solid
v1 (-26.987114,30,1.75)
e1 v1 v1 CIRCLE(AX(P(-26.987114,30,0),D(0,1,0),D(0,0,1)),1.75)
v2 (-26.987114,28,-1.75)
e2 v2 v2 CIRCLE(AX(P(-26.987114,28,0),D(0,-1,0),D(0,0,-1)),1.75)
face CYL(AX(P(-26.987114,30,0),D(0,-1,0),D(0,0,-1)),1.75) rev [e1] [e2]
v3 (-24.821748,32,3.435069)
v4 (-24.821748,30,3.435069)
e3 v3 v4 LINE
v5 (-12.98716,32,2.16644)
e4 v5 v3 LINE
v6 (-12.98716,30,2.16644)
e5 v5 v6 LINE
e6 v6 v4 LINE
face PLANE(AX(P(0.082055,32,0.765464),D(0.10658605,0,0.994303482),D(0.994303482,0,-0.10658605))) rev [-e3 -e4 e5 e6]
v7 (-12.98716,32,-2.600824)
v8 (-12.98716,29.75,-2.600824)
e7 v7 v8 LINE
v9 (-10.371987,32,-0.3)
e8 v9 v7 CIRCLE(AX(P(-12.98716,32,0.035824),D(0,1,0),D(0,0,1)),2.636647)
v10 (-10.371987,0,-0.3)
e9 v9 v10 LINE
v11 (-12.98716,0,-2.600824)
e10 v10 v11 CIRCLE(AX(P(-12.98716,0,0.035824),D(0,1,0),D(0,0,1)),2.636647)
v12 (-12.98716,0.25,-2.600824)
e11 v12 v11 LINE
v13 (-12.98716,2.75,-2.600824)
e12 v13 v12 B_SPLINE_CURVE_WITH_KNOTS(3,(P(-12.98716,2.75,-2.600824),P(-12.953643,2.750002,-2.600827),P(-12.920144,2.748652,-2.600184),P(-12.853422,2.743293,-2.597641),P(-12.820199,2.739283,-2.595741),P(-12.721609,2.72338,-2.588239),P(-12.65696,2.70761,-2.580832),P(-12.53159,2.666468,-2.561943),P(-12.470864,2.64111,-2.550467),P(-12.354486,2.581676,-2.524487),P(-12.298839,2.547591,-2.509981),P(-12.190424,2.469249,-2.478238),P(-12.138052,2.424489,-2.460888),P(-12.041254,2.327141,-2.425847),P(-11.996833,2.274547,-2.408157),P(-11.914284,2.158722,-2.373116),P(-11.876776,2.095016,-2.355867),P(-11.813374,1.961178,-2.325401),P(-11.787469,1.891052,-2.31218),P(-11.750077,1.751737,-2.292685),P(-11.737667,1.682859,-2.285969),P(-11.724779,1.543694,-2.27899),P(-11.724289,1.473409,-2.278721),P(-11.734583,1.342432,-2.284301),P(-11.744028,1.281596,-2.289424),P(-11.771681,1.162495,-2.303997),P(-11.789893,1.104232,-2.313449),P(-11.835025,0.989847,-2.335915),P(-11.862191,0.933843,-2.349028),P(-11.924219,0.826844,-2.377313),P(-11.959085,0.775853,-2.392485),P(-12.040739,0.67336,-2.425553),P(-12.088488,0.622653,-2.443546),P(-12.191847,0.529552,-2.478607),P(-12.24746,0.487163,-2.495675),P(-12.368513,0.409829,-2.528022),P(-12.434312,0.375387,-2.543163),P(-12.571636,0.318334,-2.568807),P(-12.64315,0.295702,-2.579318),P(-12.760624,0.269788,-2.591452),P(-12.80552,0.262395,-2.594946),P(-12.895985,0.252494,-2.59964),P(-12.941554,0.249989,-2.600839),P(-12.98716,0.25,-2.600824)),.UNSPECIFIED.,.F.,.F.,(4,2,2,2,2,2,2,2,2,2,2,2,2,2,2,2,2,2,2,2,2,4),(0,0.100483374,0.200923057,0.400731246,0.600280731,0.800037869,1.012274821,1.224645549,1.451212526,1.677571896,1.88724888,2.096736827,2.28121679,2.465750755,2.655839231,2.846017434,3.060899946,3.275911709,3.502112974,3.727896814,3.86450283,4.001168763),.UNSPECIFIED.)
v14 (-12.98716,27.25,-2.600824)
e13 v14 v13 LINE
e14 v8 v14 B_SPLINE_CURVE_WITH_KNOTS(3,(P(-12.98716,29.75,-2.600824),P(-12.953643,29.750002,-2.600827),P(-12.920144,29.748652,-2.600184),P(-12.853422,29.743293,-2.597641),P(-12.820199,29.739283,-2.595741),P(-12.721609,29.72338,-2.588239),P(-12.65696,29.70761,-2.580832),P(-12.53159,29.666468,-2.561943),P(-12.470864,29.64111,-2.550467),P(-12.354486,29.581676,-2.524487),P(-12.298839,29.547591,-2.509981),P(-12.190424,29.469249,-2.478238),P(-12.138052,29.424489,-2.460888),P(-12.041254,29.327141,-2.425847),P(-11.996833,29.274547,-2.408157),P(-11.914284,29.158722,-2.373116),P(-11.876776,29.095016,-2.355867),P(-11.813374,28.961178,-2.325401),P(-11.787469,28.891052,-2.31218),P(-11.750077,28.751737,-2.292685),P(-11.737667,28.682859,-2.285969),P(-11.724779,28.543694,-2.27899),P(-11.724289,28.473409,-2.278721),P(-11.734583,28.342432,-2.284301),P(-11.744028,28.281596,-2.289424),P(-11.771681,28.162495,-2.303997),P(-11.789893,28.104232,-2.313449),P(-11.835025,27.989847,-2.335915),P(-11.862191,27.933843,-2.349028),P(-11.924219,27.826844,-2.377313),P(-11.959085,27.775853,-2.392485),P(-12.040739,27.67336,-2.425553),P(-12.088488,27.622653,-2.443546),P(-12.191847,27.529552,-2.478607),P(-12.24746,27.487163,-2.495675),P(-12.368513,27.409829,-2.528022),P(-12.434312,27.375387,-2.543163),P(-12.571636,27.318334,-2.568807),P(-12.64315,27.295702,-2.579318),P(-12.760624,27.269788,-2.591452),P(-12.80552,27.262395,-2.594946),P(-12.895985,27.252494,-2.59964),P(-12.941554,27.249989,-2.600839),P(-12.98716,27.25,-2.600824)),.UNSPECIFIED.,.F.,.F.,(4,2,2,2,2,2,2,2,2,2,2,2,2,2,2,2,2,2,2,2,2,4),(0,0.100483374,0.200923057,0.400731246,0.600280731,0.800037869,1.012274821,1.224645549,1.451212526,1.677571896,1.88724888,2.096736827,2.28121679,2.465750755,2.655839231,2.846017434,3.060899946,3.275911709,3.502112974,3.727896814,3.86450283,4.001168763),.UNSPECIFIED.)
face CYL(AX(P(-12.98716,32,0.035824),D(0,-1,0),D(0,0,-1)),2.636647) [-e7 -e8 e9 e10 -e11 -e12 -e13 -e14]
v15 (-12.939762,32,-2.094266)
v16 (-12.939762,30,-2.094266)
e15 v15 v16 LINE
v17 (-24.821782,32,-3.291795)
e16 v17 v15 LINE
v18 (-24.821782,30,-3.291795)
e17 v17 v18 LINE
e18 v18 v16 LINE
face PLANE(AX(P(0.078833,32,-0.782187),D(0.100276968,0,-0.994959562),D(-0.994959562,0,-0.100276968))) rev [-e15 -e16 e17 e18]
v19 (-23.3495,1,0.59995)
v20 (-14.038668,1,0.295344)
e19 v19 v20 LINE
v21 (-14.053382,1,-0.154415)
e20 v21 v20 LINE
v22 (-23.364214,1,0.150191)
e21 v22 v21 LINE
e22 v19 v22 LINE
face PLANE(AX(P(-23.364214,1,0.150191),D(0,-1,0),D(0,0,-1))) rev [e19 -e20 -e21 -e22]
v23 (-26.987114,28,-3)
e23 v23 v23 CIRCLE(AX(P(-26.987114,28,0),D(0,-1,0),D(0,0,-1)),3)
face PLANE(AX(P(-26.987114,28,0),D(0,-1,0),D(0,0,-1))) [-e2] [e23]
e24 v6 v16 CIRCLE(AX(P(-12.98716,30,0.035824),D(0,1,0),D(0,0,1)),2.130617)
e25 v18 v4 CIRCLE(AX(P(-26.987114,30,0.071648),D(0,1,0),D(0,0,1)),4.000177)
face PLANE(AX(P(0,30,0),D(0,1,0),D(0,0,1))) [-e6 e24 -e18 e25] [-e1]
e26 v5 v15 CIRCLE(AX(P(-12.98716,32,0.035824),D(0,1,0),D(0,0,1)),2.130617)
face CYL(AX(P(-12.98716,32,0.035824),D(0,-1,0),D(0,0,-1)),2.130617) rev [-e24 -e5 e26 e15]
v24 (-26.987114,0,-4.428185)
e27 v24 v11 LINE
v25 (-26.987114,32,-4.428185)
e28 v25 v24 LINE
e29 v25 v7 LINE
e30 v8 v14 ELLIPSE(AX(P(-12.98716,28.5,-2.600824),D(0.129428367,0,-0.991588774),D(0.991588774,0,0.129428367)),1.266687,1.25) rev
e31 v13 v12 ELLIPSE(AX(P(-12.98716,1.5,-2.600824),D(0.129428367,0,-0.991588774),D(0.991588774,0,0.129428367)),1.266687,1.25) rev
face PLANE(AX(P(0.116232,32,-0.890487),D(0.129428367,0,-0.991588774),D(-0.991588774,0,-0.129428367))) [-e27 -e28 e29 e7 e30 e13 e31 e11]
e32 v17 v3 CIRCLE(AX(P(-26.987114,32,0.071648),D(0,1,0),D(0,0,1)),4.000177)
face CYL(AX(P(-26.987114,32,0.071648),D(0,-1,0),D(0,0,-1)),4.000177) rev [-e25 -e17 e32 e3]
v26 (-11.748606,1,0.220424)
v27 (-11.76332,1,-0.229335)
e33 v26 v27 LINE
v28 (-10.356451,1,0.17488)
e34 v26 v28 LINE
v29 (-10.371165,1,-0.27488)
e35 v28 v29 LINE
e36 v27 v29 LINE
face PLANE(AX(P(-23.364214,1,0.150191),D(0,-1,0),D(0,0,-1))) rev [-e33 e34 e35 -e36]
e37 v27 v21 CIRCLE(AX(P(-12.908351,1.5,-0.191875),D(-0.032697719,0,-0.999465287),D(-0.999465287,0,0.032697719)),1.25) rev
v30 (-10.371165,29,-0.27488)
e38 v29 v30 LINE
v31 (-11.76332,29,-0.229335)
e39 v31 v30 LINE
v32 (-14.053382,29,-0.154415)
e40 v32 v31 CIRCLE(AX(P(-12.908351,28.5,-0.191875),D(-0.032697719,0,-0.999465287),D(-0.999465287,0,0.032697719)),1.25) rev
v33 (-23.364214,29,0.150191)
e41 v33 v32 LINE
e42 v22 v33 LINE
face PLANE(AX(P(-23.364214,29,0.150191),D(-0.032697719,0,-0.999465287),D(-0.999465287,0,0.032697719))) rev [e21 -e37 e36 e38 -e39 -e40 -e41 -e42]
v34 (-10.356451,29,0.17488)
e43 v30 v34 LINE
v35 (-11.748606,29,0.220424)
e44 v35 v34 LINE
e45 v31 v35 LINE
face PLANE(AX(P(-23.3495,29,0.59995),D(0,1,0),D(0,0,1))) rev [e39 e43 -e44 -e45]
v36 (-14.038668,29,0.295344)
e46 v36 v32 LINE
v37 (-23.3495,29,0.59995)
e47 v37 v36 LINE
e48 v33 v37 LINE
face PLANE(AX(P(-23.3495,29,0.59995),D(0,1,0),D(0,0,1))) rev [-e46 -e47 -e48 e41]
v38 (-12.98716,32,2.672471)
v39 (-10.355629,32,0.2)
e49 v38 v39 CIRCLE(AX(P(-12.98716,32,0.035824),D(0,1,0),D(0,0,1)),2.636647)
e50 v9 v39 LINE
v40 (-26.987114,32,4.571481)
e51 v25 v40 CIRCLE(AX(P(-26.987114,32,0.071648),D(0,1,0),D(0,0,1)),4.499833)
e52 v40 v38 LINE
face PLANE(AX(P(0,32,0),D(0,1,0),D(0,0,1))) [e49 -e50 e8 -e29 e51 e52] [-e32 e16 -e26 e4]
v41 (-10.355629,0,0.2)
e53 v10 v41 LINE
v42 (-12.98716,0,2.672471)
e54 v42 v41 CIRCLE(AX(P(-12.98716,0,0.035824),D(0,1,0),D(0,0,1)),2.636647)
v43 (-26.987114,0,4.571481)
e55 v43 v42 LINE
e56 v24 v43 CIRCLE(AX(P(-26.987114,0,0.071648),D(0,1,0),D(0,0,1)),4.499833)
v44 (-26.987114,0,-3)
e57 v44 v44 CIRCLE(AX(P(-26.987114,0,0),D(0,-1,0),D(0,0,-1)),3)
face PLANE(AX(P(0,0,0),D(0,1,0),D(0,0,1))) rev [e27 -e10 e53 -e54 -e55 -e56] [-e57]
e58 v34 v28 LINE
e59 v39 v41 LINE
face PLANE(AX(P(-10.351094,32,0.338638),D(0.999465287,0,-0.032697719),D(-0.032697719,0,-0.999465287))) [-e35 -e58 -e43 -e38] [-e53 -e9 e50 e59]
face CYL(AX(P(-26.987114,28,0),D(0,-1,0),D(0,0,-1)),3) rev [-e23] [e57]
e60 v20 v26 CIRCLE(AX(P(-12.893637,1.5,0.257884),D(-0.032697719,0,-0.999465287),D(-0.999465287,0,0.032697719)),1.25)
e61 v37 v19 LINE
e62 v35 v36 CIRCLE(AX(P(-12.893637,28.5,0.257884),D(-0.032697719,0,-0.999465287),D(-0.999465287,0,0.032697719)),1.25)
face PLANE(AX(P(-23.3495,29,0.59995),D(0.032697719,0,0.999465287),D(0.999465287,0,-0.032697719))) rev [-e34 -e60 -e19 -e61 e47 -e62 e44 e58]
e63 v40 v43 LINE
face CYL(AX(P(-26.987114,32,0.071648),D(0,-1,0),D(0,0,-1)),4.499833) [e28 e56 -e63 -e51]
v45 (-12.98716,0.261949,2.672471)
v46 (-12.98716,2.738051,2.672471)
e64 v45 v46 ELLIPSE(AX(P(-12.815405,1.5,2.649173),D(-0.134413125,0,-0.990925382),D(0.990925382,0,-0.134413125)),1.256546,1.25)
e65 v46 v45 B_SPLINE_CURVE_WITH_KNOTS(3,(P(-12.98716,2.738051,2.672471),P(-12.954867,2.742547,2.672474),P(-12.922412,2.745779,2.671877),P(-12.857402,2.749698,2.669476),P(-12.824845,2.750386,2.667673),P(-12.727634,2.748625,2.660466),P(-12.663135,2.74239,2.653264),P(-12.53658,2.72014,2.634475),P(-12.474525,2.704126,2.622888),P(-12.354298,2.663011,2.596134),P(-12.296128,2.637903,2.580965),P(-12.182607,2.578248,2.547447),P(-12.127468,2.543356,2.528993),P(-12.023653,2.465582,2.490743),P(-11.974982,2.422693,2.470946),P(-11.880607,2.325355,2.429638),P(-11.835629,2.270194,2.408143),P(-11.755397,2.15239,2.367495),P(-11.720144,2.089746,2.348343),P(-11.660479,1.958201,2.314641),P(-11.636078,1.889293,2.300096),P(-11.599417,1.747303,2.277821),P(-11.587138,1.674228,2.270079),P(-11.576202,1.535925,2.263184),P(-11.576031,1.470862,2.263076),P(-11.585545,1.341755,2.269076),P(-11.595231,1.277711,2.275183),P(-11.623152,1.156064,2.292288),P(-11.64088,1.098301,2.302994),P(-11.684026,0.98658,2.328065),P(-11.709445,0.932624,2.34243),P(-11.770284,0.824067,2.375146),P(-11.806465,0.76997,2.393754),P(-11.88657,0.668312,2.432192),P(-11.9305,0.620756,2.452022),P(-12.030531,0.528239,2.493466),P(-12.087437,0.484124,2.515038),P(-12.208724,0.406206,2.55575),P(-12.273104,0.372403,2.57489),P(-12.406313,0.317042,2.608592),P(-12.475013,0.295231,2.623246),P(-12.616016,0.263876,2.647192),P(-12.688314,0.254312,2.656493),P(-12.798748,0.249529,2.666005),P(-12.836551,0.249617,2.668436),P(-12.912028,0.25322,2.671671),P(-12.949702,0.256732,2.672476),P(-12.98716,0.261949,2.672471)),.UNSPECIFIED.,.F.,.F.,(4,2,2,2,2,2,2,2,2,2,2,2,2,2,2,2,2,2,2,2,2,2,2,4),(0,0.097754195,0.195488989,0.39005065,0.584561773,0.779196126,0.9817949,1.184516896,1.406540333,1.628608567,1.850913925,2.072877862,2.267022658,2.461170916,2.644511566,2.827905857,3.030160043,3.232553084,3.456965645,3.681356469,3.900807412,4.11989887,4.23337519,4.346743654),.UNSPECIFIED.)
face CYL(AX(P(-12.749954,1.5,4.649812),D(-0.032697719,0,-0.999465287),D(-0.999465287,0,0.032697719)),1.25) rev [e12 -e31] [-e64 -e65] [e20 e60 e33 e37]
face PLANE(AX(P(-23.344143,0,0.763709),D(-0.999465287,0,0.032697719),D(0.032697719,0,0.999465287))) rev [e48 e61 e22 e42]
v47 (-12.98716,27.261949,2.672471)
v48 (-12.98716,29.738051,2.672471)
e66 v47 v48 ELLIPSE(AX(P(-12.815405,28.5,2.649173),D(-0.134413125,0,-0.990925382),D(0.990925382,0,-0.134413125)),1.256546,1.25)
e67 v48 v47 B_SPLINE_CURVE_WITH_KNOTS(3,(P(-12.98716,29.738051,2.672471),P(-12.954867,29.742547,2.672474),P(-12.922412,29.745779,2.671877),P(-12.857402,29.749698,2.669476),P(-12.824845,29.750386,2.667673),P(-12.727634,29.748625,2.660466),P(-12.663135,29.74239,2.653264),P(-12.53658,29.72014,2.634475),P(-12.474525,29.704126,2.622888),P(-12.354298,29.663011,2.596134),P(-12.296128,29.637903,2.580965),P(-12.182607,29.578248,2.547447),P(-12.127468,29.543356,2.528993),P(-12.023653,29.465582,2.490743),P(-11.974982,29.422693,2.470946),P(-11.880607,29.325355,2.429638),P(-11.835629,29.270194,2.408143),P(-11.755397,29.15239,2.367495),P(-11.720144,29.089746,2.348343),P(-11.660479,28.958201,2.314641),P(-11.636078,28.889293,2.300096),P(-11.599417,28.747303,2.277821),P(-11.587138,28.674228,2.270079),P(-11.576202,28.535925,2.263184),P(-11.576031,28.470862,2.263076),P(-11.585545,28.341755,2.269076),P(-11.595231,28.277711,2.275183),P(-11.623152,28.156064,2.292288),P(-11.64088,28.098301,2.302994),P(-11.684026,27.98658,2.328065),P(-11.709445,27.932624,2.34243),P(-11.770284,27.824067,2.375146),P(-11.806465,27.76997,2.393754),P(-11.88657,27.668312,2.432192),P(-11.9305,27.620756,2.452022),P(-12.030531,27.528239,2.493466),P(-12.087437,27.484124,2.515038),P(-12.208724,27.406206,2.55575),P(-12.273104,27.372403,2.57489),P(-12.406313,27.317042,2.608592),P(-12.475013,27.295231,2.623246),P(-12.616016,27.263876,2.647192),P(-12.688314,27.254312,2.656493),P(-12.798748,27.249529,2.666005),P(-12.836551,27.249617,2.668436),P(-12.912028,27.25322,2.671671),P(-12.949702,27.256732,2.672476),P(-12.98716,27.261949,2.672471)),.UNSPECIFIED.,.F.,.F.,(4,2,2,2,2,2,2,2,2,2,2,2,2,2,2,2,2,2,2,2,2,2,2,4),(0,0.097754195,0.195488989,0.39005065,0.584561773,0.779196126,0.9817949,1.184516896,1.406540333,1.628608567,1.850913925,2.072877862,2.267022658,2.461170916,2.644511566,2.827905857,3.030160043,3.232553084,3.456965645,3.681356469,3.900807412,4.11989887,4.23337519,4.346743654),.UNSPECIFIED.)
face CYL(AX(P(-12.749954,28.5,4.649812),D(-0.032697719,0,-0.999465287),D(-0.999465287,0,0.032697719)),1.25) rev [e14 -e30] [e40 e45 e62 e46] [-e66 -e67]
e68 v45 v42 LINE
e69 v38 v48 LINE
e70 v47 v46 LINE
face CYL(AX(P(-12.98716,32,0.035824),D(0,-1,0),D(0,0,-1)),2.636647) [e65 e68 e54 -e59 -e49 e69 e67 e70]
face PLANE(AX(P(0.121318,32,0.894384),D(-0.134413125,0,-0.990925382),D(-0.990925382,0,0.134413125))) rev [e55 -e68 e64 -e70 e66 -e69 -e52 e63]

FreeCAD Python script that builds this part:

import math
import FreeCAD as App
import Part
import Sketcher

V = App.Vector


def add_polygon(sketch, points):
    """Adds a closed chain of lines whose ends are joined by coincident constraints."""
    first, n = sketch.GeometryCount, len(points)
    for a, b in zip(points, points[1:] + points[:1]):
        sketch.addGeometry(Part.LineSegment(App.Vector(*a, 0), App.Vector(*b, 0)), False)
    for i in range(n):
        sketch.addConstraint(Sketcher.Constraint("Coincident", first + i, 2, first + (i + 1) % n, 1))

doc = App.newDocument("Part")
body = doc.addObject("PartDesign::Body", "Body")

# Sketch on XZ plane
sketch1 = body.newObject("Sketcher::SketchObject", "Sketch")
sketch1.AttachmentSupport = (doc.getObject("XZ_Plane"), [""])
sketch1.MapMode = "FlatFace"
sketch1.addGeometry(Part.LineSegment(V(-24.8, 3.4, 0), V(-13, 2.2, 0)), False)
sketch1.addGeometry(Part.ArcOfCircle(Part.Circle(V(-13, 0, 0), V(0, 0, 1), 2.1), math.radians(-89), math.radians(90)), False)
sketch1.addGeometry(Part.LineSegment(V(-12.9, -2.1, 0), V(-24.8, -3.3, 0)), False)
sketch1.addGeometry(Part.ArcOfCircle(Part.Circle(V(-27, 0.1, 0), V(0, 0, 1), 4), math.radians(57), math.radians(303)), False)
sketch1.addGeometry(Part.Circle(V(-27, 0, 0), V(0, 0, 1), 1.8), False)
sketch1.addConstraint(Sketcher.Constraint("Coincident", 0, 2, 1, 2))
sketch1.addConstraint(Sketcher.Constraint("Coincident", 1, 1, 2, 1))
sketch1.addConstraint(Sketcher.Constraint("Coincident", 2, 2, 3, 2))
sketch1.addConstraint(Sketcher.Constraint("Coincident", 3, 1, 0, 1))
sketch1.addConstraint(Sketcher.Constraint("PointOnObject", 4, 3, -1))
sketch1.addConstraint(Sketcher.Constraint("Vertical", 3, 3, 4, 3))
sketch1.addConstraint(Sketcher.Constraint("Vertical", 1, 3, 0, 2))
sketch1.addConstraint(Sketcher.Constraint("Diameter", 4, 3.5))
sketch1.addConstraint(Sketcher.Constraint("Radius", 1, 2.130617))
sketch1.addConstraint(Sketcher.Constraint("Radius", 3, 4.000177))
sketch1.addConstraint(Sketcher.Constraint("DistanceX", 1, 3, 1, 1, 0.047398))
sketch1.addConstraint(Sketcher.Constraint("Distance", 0, 11.90239))
sketch1.addConstraint(Sketcher.Constraint("DistanceX", 1, 3, -1, 1, 12.98716))
sketch1.addConstraint(Sketcher.Constraint("DistanceY", -1, 1, 0, 2, 2.16644))
sketch1.addConstraint(Sketcher.Constraint("DistanceX", 2, 2, -1, 1, 24.821782))
sketch1.addConstraint(Sketcher.Constraint("DistanceY", -1, 1, 3, 1, 3.435069))
sketch1.addConstraint(Sketcher.Constraint("DistanceY", 2, 2, 1, 1, 1.197529))
pad1 = body.newObject("PartDesign::Pad", "Pad")
pad1.Profile = sketch1
pad1.Length = 30
pad1.Reversed = True

# Sketch on XZ plane
sketch2 = body.newObject("Sketcher::SketchObject", "Sketch001")
sketch2.AttachmentSupport = (doc.getObject("XZ_Plane"), [""])
sketch2.MapMode = "FlatFace"
sketch2.addGeometry(Part.ArcOfCircle(Part.Circle(V(-27, 0.1, 0), V(0, 0, 1), 4.5), math.radians(90), math.radians(270)), False)
sketch2.addGeometry(Part.LineSegment(V(-27, 4.6, 0), V(-13, 2.7, 0)), False)
sketch2.addGeometry(Part.ArcOfCircle(Part.Circle(V(-13, 0, 0), V(0, 0, 1), 2.6), math.radians(4), math.radians(90)), False)
sketch2.addGeometry(Part.LineSegment(V(-10.4, 0.2, 0), V(-10.4, -0.3, 0)), False)
sketch2.addGeometry(Part.ArcOfCircle(Part.Circle(V(-13, 0, 0), V(0, 0, 1), 2.6), math.radians(-90), math.radians(-7)), False)
sketch2.addGeometry(Part.LineSegment(V(-13, -2.6, 0), V(-27, -4.4, 0)), False)
sketch2.addGeometry(Part.LineSegment(V(-13, 2.2, 0), V(-24.8, 3.4, 0)), False)
sketch2.addGeometry(Part.ArcOfCircle(Part.Circle(V(-27, 0.1, 0), V(0, 0, 1), 4), math.radians(57), math.radians(303)), False)
sketch2.addGeometry(Part.LineSegment(V(-24.8, -3.3, 0), V(-12.9, -2.1, 0)), False)
sketch2.addGeometry(Part.ArcOfCircle(Part.Circle(V(-13, 0, 0), V(0, 0, 1), 2.1), math.radians(-89), math.radians(90)), False)
sketch2.addConstraint(Sketcher.Constraint("Coincident", 0, 1, 1, 1))
sketch2.addConstraint(Sketcher.Constraint("Coincident", 1, 2, 2, 2))
sketch2.addConstraint(Sketcher.Constraint("Coincident", 2, 1, 3, 1))
sketch2.addConstraint(Sketcher.Constraint("Coincident", 3, 2, 4, 2))
sketch2.addConstraint(Sketcher.Constraint("Coincident", 4, 1, 5, 1))
sketch2.addConstraint(Sketcher.Constraint("Coincident", 5, 2, 0, 2))
sketch2.addConstraint(Sketcher.Constraint("Coincident", 6, 2, 7, 1))
sketch2.addConstraint(Sketcher.Constraint("Coincident", 7, 2, 8, 1))
sketch2.addConstraint(Sketcher.Constraint("Coincident", 8, 2, 9, 1))
sketch2.addConstraint(Sketcher.Constraint("Coincident", 9, 2, 6, 1))
sketch2.addConstraint(Sketcher.Constraint("Coincident", 4, 3, 2, 3))
sketch2.addConstraint(Sketcher.Constraint("Coincident", 7, 3, 0, 3))
sketch2.addConstraint(Sketcher.Constraint("Coincident", 9, 3, 2, 3))
sketch2.addConstraint(Sketcher.Constraint("Equal", 2, 4))
sketch2.addConstraint(Sketcher.Constraint("Vertical", 7, 3, 0, 1))
sketch2.addConstraint(Sketcher.Constraint("Vertical", 9, 3, 1, 2))
sketch2.addConstraint(Sketcher.Constraint("Vertical", 1, 2, 4, 1))
sketch2.addConstraint(Sketcher.Constraint("Vertical", 0, 1, 5, 2))
sketch2.addConstraint(Sketcher.Constraint("Vertical", 4, 1, 9, 2))
sketch2.addConstraint(Sketcher.Constraint("DistanceY", -1, 1, 2, 1, 0.2))
sketch2.addConstraint(Sketcher.Constraint("DistanceY", 3, 2, -1, 1, 0.3))
sketch2.addConstraint(Sketcher.Constraint("Radius", 0, 4.499833))
sketch2.addConstraint(Sketcher.Constraint("Radius", 2, 2.636647))
sketch2.addConstraint(Sketcher.Constraint("Radius", 7, 4.000177))
sketch2.addConstraint(Sketcher.Constraint("Radius", 9, 2.130617))
sketch2.addConstraint(Sketcher.Constraint("DistanceY", 1, 2, 6, 2, 0.762599))
sketch2.addConstraint(Sketcher.Constraint("DistanceX", 4, 1, 8, 2, 0.047398))
sketch2.addConstraint(Sketcher.Constraint("Distance", 1, 14.128162))
sketch2.addConstraint(Sketcher.Constraint("Distance", 5, 14.11871))
sketch2.addConstraint(Sketcher.Constraint("DistanceX", 2, 3, -1, 1, 12.98716))
sketch2.addConstraint(Sketcher.Constraint("DistanceY", -1, 1, 0, 1, 4.571481))
sketch2.addConstraint(Sketcher.Constraint("DistanceX", 7, 2, -1, 1, 24.821782))
pad2 = body.newObject("PartDesign::Pad", "Pad001")
pad2.Profile = sketch2
pad2.Length = 32
pad2.Reversed = True

# Sketch on XZ plane
sketch3 = body.newObject("Sketcher::SketchObject", "Sketch002")
sketch3.AttachmentSupport = (doc.getObject("XZ_Plane"), [""])
sketch3.MapMode = "FlatFace"
sketch3.addGeometry(Part.Circle(V(-27, 0, 0), V(0, 0, 1), 3), False)
sketch3.addConstraint(Sketcher.Constraint("PointOnObject", 0, 3, -1))
sketch3.addConstraint(Sketcher.Constraint("Diameter", 0, 6.0))
sketch3.addConstraint(Sketcher.Constraint("DistanceX", 0, 3, -1, 1, 26.987114))
pocket1 = body.newObject("PartDesign::Pocket", "Pocket")
pocket1.Profile = sketch3
pocket1.Length = 28

# Sketch on an angled plane
sketch4 = body.newObject("Sketcher::SketchObject", "Sketch003")
sketch4.Placement = App.Placement(V(-10.351094, 0, 0.338638), App.Rotation(V(-0.032697719, 0, -0.999465287), V(0, 1.000000001, 0), V(0.999465287, 0, -0.032697719), "ZXY"))
add_polygon(sketch4, [(0.16, 29), (0.16, 1), (0.61, 1), (0.61, 29)])  # lines 0-3
sketch4.addConstraint(Sketcher.Constraint("Vertical", 0))
sketch4.addConstraint(Sketcher.Constraint("Horizontal", 1))
sketch4.addConstraint(Sketcher.Constraint("Vertical", 2))
sketch4.addConstraint(Sketcher.Constraint("Horizontal", 3))
sketch4.addConstraint(Sketcher.Constraint("DistanceY", 0, 2, 0, 1, 28.0))
sketch4.addConstraint(Sketcher.Constraint("DistanceY", -1, 1, 0, 2, 1.0))
sketch4.addConstraint(Sketcher.Constraint("DistanceX", 1, 1, 1, 2, 0.45))
sketch4.addConstraint(Sketcher.Constraint("DistanceX", -1, 1, 0, 2, 0.163846))
pocket2 = body.newObject("PartDesign::Pocket", "Pocket001")
pocket2.Profile = sketch4
pocket2.Length = 13

# Sketch on an angled plane
sketch5 = body.newObject("Sketcher::SketchObject", "Sketch004")
sketch5.Placement = App.Placement(V(-0.005357, 0, -0.163759), App.Rotation(V(-0.999465287, 0, 0.032697719), V(0, 1.000000001, 0), V(-0.032697719, 0, -0.999465287), "ZXY"))
sketch5.addGeometry(Part.Circle(V(12.9, 28.5, 0), V(0, 0, 1), 1.2), False)
sketch5.addGeometry(Part.Circle(V(12.9, 1.5, 0), V(0, 0, 1), 1.2), False)
sketch5.addConstraint(Sketcher.Constraint("Equal", 0, 1))
sketch5.addConstraint(Sketcher.Constraint("Vertical", 0, 3, 1, 3))
sketch5.addConstraint(Sketcher.Constraint("Diameter", 0, 2.5))
sketch5.addConstraint(Sketcher.Constraint("DistanceY", 1, 3, 0, 3, 27.0))
sketch5.addConstraint(Sketcher.Constraint("DistanceY", -1, 1, 0, 3, 28.5))
sketch5.addConstraint(Sketcher.Constraint("DistanceX", -1, 1, 0, 3, 12.895175))
pocket3 = body.newObject("PartDesign::Pocket", "Pocket002")
pocket3.Profile = sketch5
pocket3.Type = "ThroughAll"

# Sketch on an angled plane
sketch6 = body.newObject("Sketcher::SketchObject", "Sketch005")
sketch6.Placement = App.Placement(V(-0.005357, 0, -0.163759), App.Rotation(V(-0.999465287, 0, 0.032697719), V(0, 1.000000001, 0), V(-0.032697719, 0, -0.999465287), "ZXY"))
sketch6.addGeometry(Part.Circle(V(12.9, 28.5, 0), V(0, 0, 1), 1.2), False)
sketch6.addGeometry(Part.Circle(V(12.9, 1.5, 0), V(0, 0, 1), 1.2), False)
sketch6.addConstraint(Sketcher.Constraint("Equal", 0, 1))
sketch6.addConstraint(Sketcher.Constraint("Vertical", 0, 3, 1, 3))
sketch6.addConstraint(Sketcher.Constraint("Diameter", 0, 2.5))
sketch6.addConstraint(Sketcher.Constraint("DistanceY", 1, 3, 0, 3, 27.0))
sketch6.addConstraint(Sketcher.Constraint("DistanceY", -1, 1, 0, 3, 28.5))
sketch6.addConstraint(Sketcher.Constraint("DistanceX", -1, 1, 0, 3, 12.895175))
pocket4 = body.newObject("PartDesign::Pocket", "Pocket003")
pocket4.Profile = sketch6
pocket4.Type = "ThroughAll"
pocket4.Reversed = True

doc.recompute()
